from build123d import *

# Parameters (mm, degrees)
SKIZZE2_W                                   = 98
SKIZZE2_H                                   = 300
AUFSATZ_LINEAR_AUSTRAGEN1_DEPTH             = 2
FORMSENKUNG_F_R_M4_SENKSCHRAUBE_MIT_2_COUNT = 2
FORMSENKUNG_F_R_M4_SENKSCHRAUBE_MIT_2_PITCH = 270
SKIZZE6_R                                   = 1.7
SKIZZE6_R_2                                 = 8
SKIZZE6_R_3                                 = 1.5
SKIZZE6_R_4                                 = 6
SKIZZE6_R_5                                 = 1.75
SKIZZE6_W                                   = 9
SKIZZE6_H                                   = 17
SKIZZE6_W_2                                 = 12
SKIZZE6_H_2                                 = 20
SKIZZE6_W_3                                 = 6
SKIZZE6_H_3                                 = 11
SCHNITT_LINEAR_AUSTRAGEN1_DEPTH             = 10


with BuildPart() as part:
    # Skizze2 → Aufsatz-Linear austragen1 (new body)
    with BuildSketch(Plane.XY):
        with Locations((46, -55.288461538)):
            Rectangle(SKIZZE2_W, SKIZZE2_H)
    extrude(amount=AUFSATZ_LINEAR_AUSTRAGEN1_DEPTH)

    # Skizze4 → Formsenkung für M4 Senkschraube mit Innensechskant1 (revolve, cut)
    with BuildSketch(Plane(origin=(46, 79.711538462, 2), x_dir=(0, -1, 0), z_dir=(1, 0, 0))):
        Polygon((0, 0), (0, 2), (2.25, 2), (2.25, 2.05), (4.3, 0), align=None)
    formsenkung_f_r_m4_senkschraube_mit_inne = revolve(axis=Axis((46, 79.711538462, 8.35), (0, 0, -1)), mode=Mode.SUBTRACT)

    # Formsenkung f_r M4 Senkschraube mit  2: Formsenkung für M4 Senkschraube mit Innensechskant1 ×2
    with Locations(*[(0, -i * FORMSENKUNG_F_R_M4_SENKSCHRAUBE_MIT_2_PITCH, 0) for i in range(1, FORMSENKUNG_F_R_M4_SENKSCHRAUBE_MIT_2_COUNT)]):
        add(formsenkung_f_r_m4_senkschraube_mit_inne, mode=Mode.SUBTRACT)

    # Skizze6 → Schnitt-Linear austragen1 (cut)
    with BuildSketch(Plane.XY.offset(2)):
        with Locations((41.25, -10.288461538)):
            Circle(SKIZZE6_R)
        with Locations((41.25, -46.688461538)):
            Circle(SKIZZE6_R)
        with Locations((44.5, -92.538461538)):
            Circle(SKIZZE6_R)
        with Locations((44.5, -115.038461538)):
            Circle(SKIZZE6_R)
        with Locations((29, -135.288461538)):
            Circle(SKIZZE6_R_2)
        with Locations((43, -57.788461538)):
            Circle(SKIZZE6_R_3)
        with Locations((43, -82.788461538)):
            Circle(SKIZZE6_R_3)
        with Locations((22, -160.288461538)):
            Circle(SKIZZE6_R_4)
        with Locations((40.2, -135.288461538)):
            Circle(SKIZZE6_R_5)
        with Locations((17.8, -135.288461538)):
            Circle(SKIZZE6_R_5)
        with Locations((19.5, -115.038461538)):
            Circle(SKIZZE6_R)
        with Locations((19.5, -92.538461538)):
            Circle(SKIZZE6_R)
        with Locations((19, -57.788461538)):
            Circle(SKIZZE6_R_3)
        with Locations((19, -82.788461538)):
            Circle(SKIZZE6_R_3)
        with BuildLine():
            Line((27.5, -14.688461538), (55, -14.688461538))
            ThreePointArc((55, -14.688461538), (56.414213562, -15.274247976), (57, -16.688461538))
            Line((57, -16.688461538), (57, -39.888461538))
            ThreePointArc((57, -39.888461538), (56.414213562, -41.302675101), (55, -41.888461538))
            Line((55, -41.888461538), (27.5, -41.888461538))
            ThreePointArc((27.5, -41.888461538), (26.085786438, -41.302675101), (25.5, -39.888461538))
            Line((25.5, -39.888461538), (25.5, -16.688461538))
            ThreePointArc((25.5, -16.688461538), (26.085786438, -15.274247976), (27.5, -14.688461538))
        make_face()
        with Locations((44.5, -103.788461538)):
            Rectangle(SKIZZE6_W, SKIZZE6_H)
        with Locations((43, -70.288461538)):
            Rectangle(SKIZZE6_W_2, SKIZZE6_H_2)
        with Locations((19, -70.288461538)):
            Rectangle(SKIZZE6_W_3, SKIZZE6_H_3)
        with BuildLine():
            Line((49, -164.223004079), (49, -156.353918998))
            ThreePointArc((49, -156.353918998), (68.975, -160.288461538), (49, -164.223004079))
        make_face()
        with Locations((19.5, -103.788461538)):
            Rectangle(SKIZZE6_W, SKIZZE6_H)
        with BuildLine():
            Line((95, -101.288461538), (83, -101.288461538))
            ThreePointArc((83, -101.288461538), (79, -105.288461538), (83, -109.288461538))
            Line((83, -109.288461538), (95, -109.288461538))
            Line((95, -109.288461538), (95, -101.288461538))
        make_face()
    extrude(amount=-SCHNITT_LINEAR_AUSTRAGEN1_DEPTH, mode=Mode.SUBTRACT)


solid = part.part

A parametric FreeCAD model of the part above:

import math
import FreeCAD as App
import Part
import Sketcher
from FreeCAD import Vector
Q = App.Units.Quantity

doc = App.newDocument("Part")
body = doc.addObject("PartDesign::Body", "Body")

# Sketch on XY plane
sketch1 = body.newObject("Sketcher::SketchObject", "Sketch")
sketch1.AttachmentSupport = (doc.getObject("XY_Plane"), [""])
sketch1.MapMode = "FlatFace"
sketch1.addGeometry([
    Part.LineSegment(Vector(-3, 95, 0), Vector(-3, -205, 0)),
    Part.LineSegment(Vector(-3, -205, 0), Vector(95, -205, 0)),
    Part.LineSegment(Vector(95, -205, 0), Vector(95, 95, 0)),
    Part.LineSegment(Vector(95, 95, 0), Vector(-3, 95, 0)),
], False)
sketch1.addConstraint([
    Sketcher.Constraint("Coincident", 0, 2, 1, 1),
    Sketcher.Constraint("Coincident", 1, 2, 2, 1),
    Sketcher.Constraint("Coincident", 2, 2, 3, 1),
    Sketcher.Constraint("Coincident", 3, 2, 0, 1),
    Sketcher.Constraint("Vertical", 0),
    Sketcher.Constraint("Horizontal", 1),
    Sketcher.Constraint("Vertical", 2),
    Sketcher.Constraint("Horizontal", 3),
    Sketcher.Constraint("DistanceX", 1, 1, 1, 2, Q("98 mm")),
    Sketcher.Constraint("DistanceY", 0, 2, 0, 1, Q("300 mm")),
    Sketcher.Constraint("DistanceX", 0, 2, -1, 1, Q("3 mm")),
    Sketcher.Constraint("DistanceY", 0, 2, -1, 1, Q("205.288462 mm")),
])
pad1 = body.newObject("PartDesign::Pad", "Pad")
pad1.Profile = sketch1
pad1.Length = 2

# Sketch on YZ plane
sketch2 = body.newObject("Sketcher::SketchObject", "Sketch001")
sketch2.AttachmentSupport = (doc.getObject("YZ_Plane"), [""])
sketch2.MapMode = "FlatFace"
sketch2.AttachmentOffset = App.Placement(Vector(0, 0, 46), App.Rotation())
sketch2.addGeometry([
    Part.LineSegment(Vector(79.71, 0, 0), Vector(79.71, 2, 0)),  # 0
    Part.LineSegment(Vector(79.71, 2, 0), Vector(75.41, 2, 0)),  # 1
    Part.LineSegment(Vector(75.41, 2, 0), Vector(77.46, -0.05, 0)),  # 2
    Part.LineSegment(Vector(77.46, -0.05, 0), Vector(77.46, 0, 0)),  # 3
    Part.LineSegment(Vector(77.46, 0, 0), Vector(79.71, 0, 0)),  # 4
], False)
sketch2.addGeometry(Part.LineSegment(Vector(79.71, 2, 0), Vector(79.71, -0.05, 0)), True)  # axis
sketch2.addConstraint([
    Sketcher.Constraint("Coincident", 0, 2, 1, 1),
    Sketcher.Constraint("Coincident", 1, 2, 2, 1),
    Sketcher.Constraint("Coincident", 2, 2, 3, 1),
    Sketcher.Constraint("Coincident", 3, 2, 4, 1),
    Sketcher.Constraint("Coincident", 4, 2, 0, 1),
    Sketcher.Constraint("Vertical", 0),
    Sketcher.Constraint("Horizontal", 1),
    Sketcher.Constraint("Vertical", 3),
    Sketcher.Constraint("Horizontal", 4),
    Sketcher.Constraint("Vertical", 5),
    Sketcher.Constraint("Coincident", 5, 1, 0, 2),
    Sketcher.Constraint("PointOnObject", 3, 2, -1),
    Sketcher.Constraint("Horizontal", 2, 2, 5, 2),
    Sketcher.Constraint("DistanceY", 0, 1, 0, 2, Q("2 mm")),
    Sketcher.Constraint("Angle", 2, Q("-45 deg")),
    Sketcher.Constraint("DistanceX", 1, 2, 1, 1, Q("4.3 mm")),
    Sketcher.Constraint("DistanceX", 4, 1, 4, 2, Q("2.25 mm")),
    Sketcher.Constraint("DistanceX", -1, 1, 0, 2, Q("79.711538 mm")),
])
groove = body.newObject("PartDesign::Groove", "Groove")
groove.Profile = sketch2
groove.ReferenceAxis = (sketch2, ["Axis0"])
groove.Angle = 360
doc.recompute()

linearpattern = body.newObject("PartDesign::LinearPattern", "LinearPattern")
linearpattern.Originals = [groove]
linearpattern.Direction = (doc.getObject("Y_Axis"), [""])
linearpattern.Mode = "offset"
linearpattern.Offset = 270
linearpattern.Occurrences = 2
linearpattern.Reversed = True
body.Tip = linearpattern

# Sketch on XY plane
sketch3 = body.newObject("Sketcher::SketchObject", "Sketch002")
sketch3.AttachmentSupport = (doc.getObject("XY_Plane"), [""])
sketch3.MapMode = "FlatFace"
sketch3.AttachmentOffset = App.Placement(Vector(0, 0, 2), App.Rotation())
sketch3.addGeometry([
    Part.Circle(Vector(41.2, -10.3, 0), Vector(0, 0, 1), 1.7),  # 0
    Part.Circle(Vector(41.2, -46.7, 0), Vector(0, 0, 1), 1.7),  # 1
    Part.Circle(Vector(44.5, -92.5, 0), Vector(0, 0, 1), 1.7),  # 2
    Part.Circle(Vector(44.5, -115, 0), Vector(0, 0, 1), 1.7),  # 3
    Part.Circle(Vector(29, -135.3, 0), Vector(0, 0, 1), 8),  # 4
    Part.Circle(Vector(43, -57.8, 0), Vector(0, 0, 1), 1.5),  # 5
    Part.Circle(Vector(43, -82.8, 0), Vector(0, 0, 1), 1.5),  # 6
    Part.Circle(Vector(22, -160.3, 0), Vector(0, 0, 1), 6),  # 7
    Part.Circle(Vector(40.2, -135.3, 0), Vector(0, 0, 1), 1.8),  # 8
    Part.Circle(Vector(17.8, -135.3, 0), Vector(0, 0, 1), 1.8),  # 9
    Part.Circle(Vector(19.5, -115, 0), Vector(0, 0, 1), 1.7),  # 10
    Part.Circle(Vector(19.5, -92.5, 0), Vector(0, 0, 1), 1.7),  # 11
    Part.Circle(Vector(19, -57.8, 0), Vector(0, 0, 1), 1.5),  # 12
    Part.Circle(Vector(19, -82.8, 0), Vector(0, 0, 1), 1.5),  # 13
    Part.LineSegment(Vector(55, -14.7, 0), Vector(27.5, -14.7, 0)),  # 14
    Part.ArcOfCircle(Part.Circle(Vector(27.5, -16.7, 0), Vector(0, 0, 1), 2), math.radians(90), math.radians(180)),  # 15
    Part.LineSegment(Vector(25.5, -16.7, 0), Vector(25.5, -39.9, 0)),  # 16
    Part.ArcOfCircle(Part.Circle(Vector(27.5, -39.9, 0), Vector(0, 0, 1), 2), math.radians(180), math.radians(270)),  # 17
    Part.LineSegment(Vector(27.5, -41.9, 0), Vector(55, -41.9, 0)),  # 18
    Part.ArcOfCircle(Part.Circle(Vector(55, -39.9, 0), Vector(0, 0, 1), 2), math.radians(-90), math.radians(0)),  # 19
    Part.LineSegment(Vector(57, -39.9, 0), Vector(57, -16.7, 0)),  # 20
    Part.ArcOfCircle(Part.Circle(Vector(55, -16.7, 0), Vector(0, 0, 1), 2), math.radians(0), math.radians(90)),  # 21
    Part.LineSegment(Vector(40, -95.3, 0), Vector(40, -112.3, 0)),  # 22
    Part.LineSegment(Vector(40, -112.3, 0), Vector(49, -112.3, 0)),  # 23
    Part.LineSegment(Vector(49, -112.3, 0), Vector(49, -95.3, 0)),  # 24
    Part.LineSegment(Vector(49, -95.3, 0), Vector(40, -95.3, 0)),  # 25
    Part.LineSegment(Vector(37, -60.3, 0), Vector(37, -80.3, 0)),  # 26
    Part.LineSegment(Vector(37, -80.3, 0), Vector(49, -80.3, 0)),  # 27
    Part.LineSegment(Vector(49, -80.3, 0), Vector(49, -60.3, 0)),  # 28
    Part.LineSegment(Vector(49, -60.3, 0), Vector(37, -60.3, 0)),  # 29
    Part.LineSegment(Vector(16, -64.8, 0), Vector(16, -75.8, 0)),  # 30
    Part.LineSegment(Vector(16, -75.8, 0), Vector(22, -75.8, 0)),  # 31
    Part.LineSegment(Vector(22, -75.8, 0), Vector(22, -64.8, 0)),  # 32
    Part.LineSegment(Vector(22, -64.8, 0), Vector(16, -64.8, 0)),  # 33
    Part.LineSegment(Vector(49, -156.4, 0), Vector(49, -164.2, 0)),  # 34
    Part.ArcOfCircle(Part.Circle(Vector(58.6, -160.3, 0), Vector(0, 0, 1), 10.4), math.radians(-158), math.radians(158)),  # 35
    Part.LineSegment(Vector(15, -95.3, 0), Vector(15, -112.3, 0)),  # 36
    Part.LineSegment(Vector(15, -112.3, 0), Vector(24, -112.3, 0)),  # 37
    Part.LineSegment(Vector(24, -112.3, 0), Vector(24, -95.3, 0)),  # 38
    Part.LineSegment(Vector(24, -95.3, 0), Vector(15, -95.3, 0)),  # 39
    Part.LineSegment(Vector(95, -101.3, 0), Vector(83, -101.3, 0)),  # 40
    Part.ArcOfCircle(Part.Circle(Vector(83, -105.3, 0), Vector(0, 0, 1), 4), math.radians(90), math.radians(270)),  # 41
    Part.LineSegment(Vector(83, -109.3, 0), Vector(95, -109.3, 0)),  # 42
    Part.LineSegment(Vector(95, -109.3, 0), Vector(95, -101.3, 0)),  # 43
], False)
sketch3.addConstraint([
    Sketcher.Constraint("Tangent", 14, 2, 15, 1),
    Sketcher.Constraint("Tangent", 15, 2, 16, 1),
    Sketcher.Constraint("Tangent", 16, 2, 17, 1),
    Sketcher.Constraint("Tangent", 17, 2, 18, 1),
    Sketcher.Constraint("Tangent", 18, 2, 19, 1),
    Sketcher.Constraint("Tangent", 19, 2, 20, 1),
    Sketcher.Constraint("Tangent", 20, 2, 21, 1),
    Sketcher.Constraint("Tangent", 21, 2, 14, 1),
    Sketcher.Constraint("Coincident", 22, 2, 23, 1),
    Sketcher.Constraint("Coincident", 23, 2, 24, 1),
    Sketcher.Constraint("Coincident", 24, 2, 25, 1),
    Sketcher.Constraint("Coincident", 25, 2, 22, 1),
    Sketcher.Constraint("Coincident", 26, 2, 27, 1),
    Sketcher.Constraint("Coincident", 27, 2, 28, 1),
    Sketcher.Constraint("Coincident", 28, 2, 29, 1),
    Sketcher.Constraint("Coincident", 29, 2, 26, 1),
    Sketcher.Constraint("Coincident", 30, 2, 31, 1),
    Sketcher.Constraint("Coincident", 31, 2, 32, 1),
    Sketcher.Constraint("Coincident", 32, 2, 33, 1),
    Sketcher.Constraint("Coincident", 33, 2, 30, 1),
    Sketcher.Constraint("Coincident", 34, 1, 35, 2),
    Sketcher.Constraint("Coincident", 35, 1, 34, 2),
    Sketcher.Constraint("Coincident", 36, 2, 37, 1),
    Sketcher.Constraint("Coincident", 37, 2, 38, 1),
    Sketcher.Constraint("Coincident", 38, 2, 39, 1),
    Sketcher.Constraint("Coincident", 39, 2, 36, 1),
    Sketcher.Constraint("Tangent", 40, 2, 41, 1),
    Sketcher.Constraint("Tangent", 41, 2, 42, 1),
    Sketcher.Constraint("Coincident", 42, 2, 43, 1),
    Sketcher.Constraint("Coincident", 43, 2, 40, 1),
    Sketcher.Constraint("Horizontal", 14),
    Sketcher.Constraint("Vertical", 16),
    Sketcher.Constraint("Horizontal", 18),
    Sketcher.Constraint("Vertical", 20),
    Sketcher.Constraint("Vertical", 22),
    Sketcher.Constraint("Horizontal", 23),
    Sketcher.Constraint("Vertical", 24),
    Sketcher.Constraint("Horizontal", 25),
    Sketcher.Constraint("Vertical", 26),
    Sketcher.Constraint("Horizontal", 27),
    Sketcher.Constraint("Vertical", 28),
    Sketcher.Constraint("Horizontal", 29),
    Sketcher.Constraint("Vertical", 30),
    Sketcher.Constraint("Horizontal", 31),
    Sketcher.Constraint("Vertical", 32),
    Sketcher.Constraint("Horizontal", 33),
    Sketcher.Constraint("Vertical", 34),
    Sketcher.Constraint("Vertical", 36),
    Sketcher.Constraint("Horizontal", 37),
    Sketcher.Constraint("Vertical", 38),
    Sketcher.Constraint("Horizontal", 39),
    Sketcher.Constraint("Horizontal", 40),
    Sketcher.Constraint("Horizontal", 42),
    Sketcher.Constraint("Vertical", 43),
    Sketcher.Constraint("Equal", 0, 1),
    Sketcher.Constraint("Equal", 1, 2),
    Sketcher.Constraint("Equal", 2, 3),
    Sketcher.Constraint("Equal", 5, 6),
    Sketcher.Constraint("Equal", 8, 9),
    Sketcher.Constraint("Equal", 3, 10),
    Sketcher.Constraint("Equal", 10, 11),
    Sketcher.Constraint("Equal", 6, 12),
    Sketcher.Constraint("Equal", 12, 13),
    Sketcher.Constraint("Equal", 15, 17),
    Sketcher.Constraint("Equal", 17, 19),
    Sketcher.Constraint("Equal", 19, 21),
    Sketcher.Constraint("Horizontal", 4, 3, 8, 3),
    Sketcher.Constraint("Horizontal", 8, 3, 9, 3),
    Sketcher.Constraint("Horizontal", 3, 3, 10, 3),
    Sketcher.Constraint("Horizontal", 2, 3, 11, 3),
    Sketcher.Constraint("Horizontal", 5, 3, 12, 3),
    Sketcher.Constraint("Horizontal", 6, 3, 13, 3),
    Sketcher.Constraint("Horizontal", 7, 3, 35, 3),
    Sketcher.Constraint("Horizontal", 23, 2, 36, 2),
    Sketcher.Constraint("Horizontal", 25, 2, 38, 2),
    Sketcher.Constraint("Vertical", 0, 3, 1, 3),
    Sketcher.Constraint("Vertical", 2, 3, 3, 3),
    Sketcher.Constraint("Vertical", 5, 3, 6, 3),
    Sketcher.Constraint("Vertical", 10, 3, 11, 3),
    Sketcher.Constraint("Vertical", 12, 3, 13, 3),
    Sketcher.Constraint("Vertical", 24, 2, 27, 2),
    Sketcher.Constraint("Vertical", 7, 3, 31, 2),
    Sketcher.Constraint("Vertical", 28, 2, 34, 1),
    Sketcher.Constraint("Equal", 25, 37),
    Sketcher.Constraint("Equal", 29, 40),
    Sketcher.Constraint("Diameter", 4, Q("16 mm")),
    Sketcher.Constraint("Diameter", 5, Q("3 mm")),
    Sketcher.Constraint("Diameter", 7, Q("12 mm")),
    Sketcher.Constraint("Radius", 15, Q("2 mm")),
    Sketcher.Constraint("Radius", 41, Q("4 mm")),
    Sketcher.Constraint("Diameter", 0, Q("3.4 mm")),
    Sketcher.Constraint("Diameter", 8, Q("3.5 mm")),
    Sketcher.Constraint("DistanceX", 23, 1, 23, 2, Q("9 mm")),
    Sketcher.Constraint("DistanceX", 27, 1, 27, 2, Q("12 mm")),
    Sketcher.Constraint("DistanceX", 31, 1, 31, 2, Q("6 mm")),
    Sketcher.Constraint("DistanceY", 22, 2, 22, 1, Q("17 mm")),
    Sketcher.Constraint("DistanceY", 26, 2, 26, 1, Q("20 mm")),
    Sketcher.Constraint("DistanceY", 30, 2, 30, 1, Q("11 mm")),
    Sketcher.Constraint("DistanceX", 14, 2, 14, 1, Q("27.5 mm")),
    Sketcher.Constraint("DistanceY", 16, 2, 16, 1, Q("23.2 mm")),
    Sketcher.Constraint("DistanceX", -1, 1, 4, 3, Q("29 mm")),
    Sketcher.Constraint("DistanceX", -1, 1, 5, 3, Q("43 mm")),
    Sketcher.Constraint("DistanceX", -1, 1, 7, 3, Q("22 mm")),
    Sketcher.Constraint("DistanceX", -1, 1, 12, 3, Q("19 mm")),
    Sketcher.Constraint("DistanceX", -1, 1, 19, 3, Q("55 mm")),
    Sketcher.Constraint("DistanceX", -1, 1, 41, 3, Q("83 mm")),
    Sketcher.Constraint("DistanceX", -1, 1, 22, 2, Q("40 mm")),
    Sketcher.Constraint("DistanceX", -1, 1, 36, 2, Q("15 mm")),
    Sketcher.Constraint("Radius", 35, Q("10.375 mm")),
    Sketcher.Constraint("DistanceY", 4, 3, 0, 3, Q("125 mm")),
    Sketcher.Constraint("DistanceY", 6, 3, 5, 3, Q("25 mm")),
    Sketcher.Constraint("DistanceY", 7, 3, 4, 3, Q("25 mm")),
    Sketcher.Constraint("DistanceX", 10, 3, 3, 3, Q("25 mm")),
    Sketcher.Constraint("DistanceY", 1, 3, 15, 3, Q("30 mm")),
    Sketcher.Constraint("DistanceY", 8, 3, 41, 3, Q("30 mm")),
    Sketcher.Constraint("DistanceY", 8, 3, 22, 2, Q("23 mm")),
    Sketcher.Constraint("DistanceY", 25, 2, 26, 2, Q("15 mm")),
    Sketcher.Constraint("DistanceY", 13, 3, 30, 2, Q("7 mm")),
    Sketcher.Constraint("DistanceX", -1, 1, 2, 3, Q("44.5 mm")),
    Sketcher.Constraint("DistanceX", -1, 1, 8, 3, Q("40.2 mm")),
    Sketcher.Constraint("DistanceX", -1, 1, 9, 3, Q("17.8 mm")),
    Sketcher.Constraint("DistanceX", -1, 1, 35, 3, Q("58.6 mm")),
    Sketcher.Constraint("DistanceY", 1, 3, 0, 3, Q("36.4 mm")),
    Sketcher.Constraint("DistanceY", 3, 3, 2, 3, Q("22.5 mm")),
    Sketcher.Constraint("DistanceY", 5, 3, 1, 3, Q("11.1 mm")),
    Sketcher.Constraint("DistanceX", -1, 1, 0, 3, Q("41.25 mm")),
    Sketcher.Constraint("DistanceY", 2, 3, 1, 3, Q("45.85 mm")),
    Sketcher.Constraint("DistanceY", 0, 3, -1, 1, Q("10.288462 mm")),
])
pocket1 = body.newObject("PartDesign::Pocket", "Pocket")
pocket1.Profile = sketch3
pocket1.Length = 10

doc.recompute()
